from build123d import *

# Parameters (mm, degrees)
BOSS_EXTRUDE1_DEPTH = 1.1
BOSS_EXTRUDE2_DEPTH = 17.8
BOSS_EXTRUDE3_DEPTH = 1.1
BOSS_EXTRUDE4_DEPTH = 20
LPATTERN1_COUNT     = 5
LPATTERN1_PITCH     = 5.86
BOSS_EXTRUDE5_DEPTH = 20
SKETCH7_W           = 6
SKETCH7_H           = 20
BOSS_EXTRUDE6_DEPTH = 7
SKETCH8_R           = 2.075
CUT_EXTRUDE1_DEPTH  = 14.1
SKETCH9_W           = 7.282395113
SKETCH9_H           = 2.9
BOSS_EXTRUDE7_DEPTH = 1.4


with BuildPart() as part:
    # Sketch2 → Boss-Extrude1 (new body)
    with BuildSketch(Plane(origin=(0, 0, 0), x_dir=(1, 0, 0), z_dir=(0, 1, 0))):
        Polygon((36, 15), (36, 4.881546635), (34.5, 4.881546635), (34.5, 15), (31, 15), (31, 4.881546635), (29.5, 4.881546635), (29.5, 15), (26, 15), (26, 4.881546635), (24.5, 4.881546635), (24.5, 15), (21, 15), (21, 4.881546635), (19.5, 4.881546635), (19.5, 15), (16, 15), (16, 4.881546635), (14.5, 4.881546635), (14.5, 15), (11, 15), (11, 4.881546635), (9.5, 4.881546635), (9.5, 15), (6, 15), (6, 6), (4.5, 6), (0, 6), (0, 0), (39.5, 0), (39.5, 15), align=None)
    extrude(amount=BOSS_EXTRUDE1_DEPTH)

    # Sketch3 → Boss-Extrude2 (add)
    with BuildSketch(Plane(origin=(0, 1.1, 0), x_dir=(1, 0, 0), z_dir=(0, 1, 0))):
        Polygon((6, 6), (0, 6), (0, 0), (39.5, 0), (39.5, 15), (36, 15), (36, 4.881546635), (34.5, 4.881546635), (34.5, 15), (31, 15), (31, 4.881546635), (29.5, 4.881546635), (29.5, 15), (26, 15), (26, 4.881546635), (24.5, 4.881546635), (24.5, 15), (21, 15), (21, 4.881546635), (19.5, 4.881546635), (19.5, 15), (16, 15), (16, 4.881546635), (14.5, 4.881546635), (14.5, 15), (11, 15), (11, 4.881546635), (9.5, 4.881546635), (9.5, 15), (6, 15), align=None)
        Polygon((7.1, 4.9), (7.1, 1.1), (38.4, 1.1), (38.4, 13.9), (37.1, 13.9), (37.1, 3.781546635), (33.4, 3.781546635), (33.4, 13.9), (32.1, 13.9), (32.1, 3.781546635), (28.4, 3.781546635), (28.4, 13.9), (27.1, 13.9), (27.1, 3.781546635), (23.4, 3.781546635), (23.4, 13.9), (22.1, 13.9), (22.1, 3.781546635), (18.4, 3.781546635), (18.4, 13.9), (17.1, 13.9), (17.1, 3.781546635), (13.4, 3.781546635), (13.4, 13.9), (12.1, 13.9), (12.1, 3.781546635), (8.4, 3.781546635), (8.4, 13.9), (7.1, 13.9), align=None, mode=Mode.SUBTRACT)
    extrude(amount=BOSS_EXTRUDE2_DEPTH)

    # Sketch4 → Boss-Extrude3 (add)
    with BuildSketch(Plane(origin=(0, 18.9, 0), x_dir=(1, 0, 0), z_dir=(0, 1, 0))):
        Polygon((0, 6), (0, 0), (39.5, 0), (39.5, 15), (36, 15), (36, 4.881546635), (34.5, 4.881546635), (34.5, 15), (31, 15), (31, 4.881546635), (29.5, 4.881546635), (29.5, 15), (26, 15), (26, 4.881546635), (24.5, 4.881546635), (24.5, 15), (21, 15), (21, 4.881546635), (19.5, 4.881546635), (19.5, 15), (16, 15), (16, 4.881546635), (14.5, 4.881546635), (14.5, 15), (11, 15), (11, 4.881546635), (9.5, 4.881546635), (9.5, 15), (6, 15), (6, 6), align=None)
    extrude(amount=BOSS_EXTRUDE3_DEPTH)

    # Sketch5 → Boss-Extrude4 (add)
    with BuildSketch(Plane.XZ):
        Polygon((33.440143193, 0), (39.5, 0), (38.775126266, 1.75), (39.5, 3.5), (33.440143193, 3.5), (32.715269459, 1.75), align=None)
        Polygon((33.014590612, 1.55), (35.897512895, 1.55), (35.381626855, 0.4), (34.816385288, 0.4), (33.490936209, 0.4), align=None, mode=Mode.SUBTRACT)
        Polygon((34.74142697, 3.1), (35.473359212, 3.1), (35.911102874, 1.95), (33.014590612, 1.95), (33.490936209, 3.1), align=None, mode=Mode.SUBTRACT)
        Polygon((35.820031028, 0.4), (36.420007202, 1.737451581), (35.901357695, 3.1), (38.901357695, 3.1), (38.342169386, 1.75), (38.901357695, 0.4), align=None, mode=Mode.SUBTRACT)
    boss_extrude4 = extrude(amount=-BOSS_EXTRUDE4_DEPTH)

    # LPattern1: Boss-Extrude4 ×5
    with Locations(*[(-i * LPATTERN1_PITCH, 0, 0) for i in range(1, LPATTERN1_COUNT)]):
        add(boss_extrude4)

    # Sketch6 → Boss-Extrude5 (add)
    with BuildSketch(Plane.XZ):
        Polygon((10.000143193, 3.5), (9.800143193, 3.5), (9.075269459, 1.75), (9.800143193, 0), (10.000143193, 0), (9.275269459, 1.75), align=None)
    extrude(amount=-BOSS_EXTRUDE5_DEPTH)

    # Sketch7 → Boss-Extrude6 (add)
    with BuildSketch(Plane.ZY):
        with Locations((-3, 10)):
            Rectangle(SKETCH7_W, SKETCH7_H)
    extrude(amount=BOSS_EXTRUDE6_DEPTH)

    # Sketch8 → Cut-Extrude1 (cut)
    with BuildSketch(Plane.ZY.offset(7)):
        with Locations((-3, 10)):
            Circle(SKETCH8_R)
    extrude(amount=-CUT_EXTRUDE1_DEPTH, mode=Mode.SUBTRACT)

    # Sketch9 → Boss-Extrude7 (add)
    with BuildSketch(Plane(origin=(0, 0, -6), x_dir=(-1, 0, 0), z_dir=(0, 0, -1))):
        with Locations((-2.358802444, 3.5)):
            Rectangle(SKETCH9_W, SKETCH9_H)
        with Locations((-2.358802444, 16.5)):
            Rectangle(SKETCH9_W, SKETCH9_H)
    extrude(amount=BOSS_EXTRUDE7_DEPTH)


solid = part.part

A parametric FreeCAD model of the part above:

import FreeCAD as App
import Part
import Sketcher

V = App.Vector
Q = App.Units.Quantity

doc = App.newDocument("Part")
body = doc.addObject("PartDesign::Body", "Body")

sketch1 = body.newObject("Sketcher::SketchObject", "Sketch")
sketch1.AttachmentSupport = (doc.getObject("XZ_Plane"), [""])
sketch1.MapMode = "FlatFace"
sketch1.addGeometry([
    Part.LineSegment(V(36, -15, 0), V(36, -4.9, 0)),
    Part.LineSegment(V(36, -4.9, 0), V(34.5, -4.9, 0)),
    Part.LineSegment(V(34.5, -4.9, 0), V(34.5, -15, 0)),
    Part.LineSegment(V(34.5, -15, 0), V(31, -15, 0)),
    Part.LineSegment(V(31, -15, 0), V(31, -4.9, 0)),
    Part.LineSegment(V(31, -4.9, 0), V(29.5, -4.9, 0)),
    Part.LineSegment(V(29.5, -4.9, 0), V(29.5, -15, 0)),
    Part.LineSegment(V(29.5, -15, 0), V(26, -15, 0)),
    Part.LineSegment(V(26, -15, 0), V(26, -4.9, 0)),
    Part.LineSegment(V(26, -4.9, 0), V(24.5, -4.9, 0)),
    Part.LineSegment(V(24.5, -4.9, 0), V(24.5, -15, 0)),
    Part.LineSegment(V(24.5, -15, 0), V(21, -15, 0)),
    Part.LineSegment(V(21, -15, 0), V(21, -4.9, 0)),
    Part.LineSegment(V(21, -4.9, 0), V(19.5, -4.9, 0)),
    Part.LineSegment(V(19.5, -4.9, 0), V(19.5, -15, 0)),
    Part.LineSegment(V(19.5, -15, 0), V(16, -15, 0)),
    Part.LineSegment(V(16, -15, 0), V(16, -4.9, 0)),
    Part.LineSegment(V(16, -4.9, 0), V(14.5, -4.9, 0)),
    Part.LineSegment(V(14.5, -4.9, 0), V(14.5, -15, 0)),
    Part.LineSegment(V(14.5, -15, 0), V(11, -15, 0)),
    Part.LineSegment(V(11, -15, 0), V(11, -4.9, 0)),
    Part.LineSegment(V(11, -4.9, 0), V(9.5, -4.9, 0)),
    Part.LineSegment(V(9.5, -4.9, 0), V(9.5, -15, 0)),
    Part.LineSegment(V(9.5, -15, 0), V(6, -15, 0)),
    Part.LineSegment(V(6, -15, 0), V(6, -6, 0)),
    Part.LineSegment(V(6, -6, 0), V(0, -6, 0)),
    Part.LineSegment(V(0, -6, 0), V(0, 0, 0)),
    Part.LineSegment(V(0, 0, 0), V(39.5, 0, 0)),
    Part.LineSegment(V(39.5, 0, 0), V(39.5, -15, 0)),
    Part.LineSegment(V(39.5, -15, 0), V(36, -15, 0)),
], False)
sketch1.addConstraint([
    Sketcher.Constraint("Coincident", 0, 2, 1, 1),
    Sketcher.Constraint("Coincident", 1, 2, 2, 1),
    Sketcher.Constraint("Coincident", 2, 2, 3, 1),
    Sketcher.Constraint("Coincident", 3, 2, 4, 1),
    Sketcher.Constraint("Coincident", 4, 2, 5, 1),
    Sketcher.Constraint("Coincident", 5, 2, 6, 1),
    Sketcher.Constraint("Coincident", 6, 2, 7, 1),
    Sketcher.Constraint("Coincident", 7, 2, 8, 1),
    Sketcher.Constraint("Coincident", 8, 2, 9, 1),
    Sketcher.Constraint("Coincident", 9, 2, 10, 1),
    Sketcher.Constraint("Coincident", 10, 2, 11, 1),
    Sketcher.Constraint("Coincident", 11, 2, 12, 1),
    Sketcher.Constraint("Coincident", 12, 2, 13, 1),
    Sketcher.Constraint("Coincident", 13, 2, 14, 1),
    Sketcher.Constraint("Coincident", 14, 2, 15, 1),
    Sketcher.Constraint("Coincident", 15, 2, 16, 1),
    Sketcher.Constraint("Coincident", 16, 2, 17, 1),
    Sketcher.Constraint("Coincident", 17, 2, 18, 1),
    Sketcher.Constraint("Coincident", 18, 2, 19, 1),
    Sketcher.Constraint("Coincident", 19, 2, 20, 1),
    Sketcher.Constraint("Coincident", 20, 2, 21, 1),
    Sketcher.Constraint("Coincident", 21, 2, 22, 1),
    Sketcher.Constraint("Coincident", 22, 2, 23, 1),
    Sketcher.Constraint("Coincident", 23, 2, 24, 1),
    Sketcher.Constraint("Coincident", 24, 2, 25, 1),
    Sketcher.Constraint("Coincident", 25, 2, 26, 1),
    Sketcher.Constraint("Coincident", 26, 2, 27, 1),
    Sketcher.Constraint("Coincident", 27, 2, 28, 1),
    Sketcher.Constraint("Coincident", 28, 2, 29, 1),
    Sketcher.Constraint("Coincident", 29, 2, 0, 1),
    Sketcher.Constraint("Vertical", 0),
    Sketcher.Constraint("Horizontal", 1),
    Sketcher.Constraint("Vertical", 2),
    Sketcher.Constraint("Horizontal", 3),
    Sketcher.Constraint("Vertical", 4),
    Sketcher.Constraint("Horizontal", 5),
    Sketcher.Constraint("Vertical", 6),
    Sketcher.Constraint("Horizontal", 7),
    Sketcher.Constraint("Vertical", 8),
    Sketcher.Constraint("Horizontal", 9),
    Sketcher.Constraint("Vertical", 10),
    Sketcher.Constraint("Horizontal", 11),
    Sketcher.Constraint("Vertical", 12),
    Sketcher.Constraint("Horizontal", 13),
    Sketcher.Constraint("Vertical", 14),
    Sketcher.Constraint("Horizontal", 15),
    Sketcher.Constraint("Vertical", 16),
    Sketcher.Constraint("Horizontal", 17),
    Sketcher.Constraint("Vertical", 18),
    Sketcher.Constraint("Horizontal", 19),
    Sketcher.Constraint("Vertical", 20),
    Sketcher.Constraint("Horizontal", 21),
    Sketcher.Constraint("Vertical", 22),
    Sketcher.Constraint("Horizontal", 23),
    Sketcher.Constraint("Vertical", 24),
    Sketcher.Constraint("Horizontal", 25),
    Sketcher.Constraint("Vertical", 26),
    Sketcher.Constraint("Horizontal", 27),
    Sketcher.Constraint("Vertical", 28),
    Sketcher.Constraint("Horizontal", 29),
    Sketcher.Constraint("Coincident", 26, 2, -1, 1),
    Sketcher.Constraint("Horizontal", 1, 2, 4, 2),
    Sketcher.Constraint("Horizontal", 3, 2, 6, 2),
    Sketcher.Constraint("Horizontal", 5, 2, 8, 2),
    Sketcher.Constraint("Horizontal", 7, 2, 10, 2),
    Sketcher.Constraint("Horizontal", 9, 2, 12, 2),
    Sketcher.Constraint("Horizontal", 11, 2, 14, 2),
    Sketcher.Constraint("Horizontal", 13, 2, 16, 2),
    Sketcher.Constraint("Horizontal", 15, 2, 18, 2),
    Sketcher.Constraint("Horizontal", 17, 2, 20, 2),
    Sketcher.Constraint("Horizontal", 19, 2, 22, 2),
    Sketcher.Constraint("Horizontal", 23, 2, 28, 2),
    Sketcher.Constraint("Equal", 1, 5),
    Sketcher.Constraint("Equal", 3, 7),
    Sketcher.Constraint("Equal", 5, 9),
    Sketcher.Constraint("Equal", 7, 11),
    Sketcher.Constraint("Equal", 9, 13),
    Sketcher.Constraint("Equal", 11, 15),
    Sketcher.Constraint("Equal", 13, 17),
    Sketcher.Constraint("Equal", 15, 19),
    Sketcher.Constraint("Equal", 17, 21),
    Sketcher.Constraint("Equal", 19, 23),
    Sketcher.Constraint("Equal", 23, 29),
    Sketcher.Constraint("Equal", 25, 26),
    Sketcher.Constraint("DistanceX", 25, 2, 25, 1, 6.0),
    Sketcher.Constraint("DistanceY", 24, 1, 24, 2, 9.0),
    Sketcher.Constraint("DistanceX", 1, 2, 1, 1, 1.5),
    Sketcher.Constraint("DistanceX", 3, 2, 3, 1, 3.5),
    Sketcher.Constraint("DistanceY", 0, 1, 0, 2, 10.118453),
])
pad1 = body.newObject("PartDesign::Pad", "Pad")
pad1.Profile = sketch1
pad1.Length = 1.1
pad1.Reversed = True

sketch2 = body.newObject("Sketcher::SketchObject", "Sketch001")
sketch2.AttachmentSupport = (doc.getObject("XZ_Plane"), [""])
sketch2.MapMode = "FlatFace"
sketch2.AttachmentOffset = App.Placement(V(0, 0, -1.1), App.Rotation())
sketch2.addGeometry([
    Part.LineSegment(V(6, -6, 0), V(0, -6, 0)),
    Part.LineSegment(V(0, -6, 0), V(0, 0, 0)),
    Part.LineSegment(V(0, 0, 0), V(39.5, 0, 0)),
    Part.LineSegment(V(39.5, 0, 0), V(39.5, -15, 0)),
    Part.LineSegment(V(39.5, -15, 0), V(36, -15, 0)),
    Part.LineSegment(V(36, -15, 0), V(36, -4.9, 0)),
    Part.LineSegment(V(36, -4.9, 0), V(34.5, -4.9, 0)),
    Part.LineSegment(V(34.5, -4.9, 0), V(34.5, -15, 0)),
    Part.LineSegment(V(34.5, -15, 0), V(31, -15, 0)),
    Part.LineSegment(V(31, -15, 0), V(31, -4.9, 0)),
    Part.LineSegment(V(31, -4.9, 0), V(29.5, -4.9, 0)),
    Part.LineSegment(V(29.5, -4.9, 0), V(29.5, -15, 0)),
    Part.LineSegment(V(29.5, -15, 0), V(26, -15, 0)),
    Part.LineSegment(V(26, -15, 0), V(26, -4.9, 0)),
    Part.LineSegment(V(26, -4.9, 0), V(24.5, -4.9, 0)),
    Part.LineSegment(V(24.5, -4.9, 0), V(24.5, -15, 0)),
    Part.LineSegment(V(24.5, -15, 0), V(21, -15, 0)),
    Part.LineSegment(V(21, -15, 0), V(21, -4.9, 0)),
    Part.LineSegment(V(21, -4.9, 0), V(19.5, -4.9, 0)),
    Part.LineSegment(V(19.5, -4.9, 0), V(19.5, -15, 0)),
    Part.LineSegment(V(19.5, -15, 0), V(16, -15, 0)),
    Part.LineSegment(V(16, -15, 0), V(16, -4.9, 0)),
    Part.LineSegment(V(16, -4.9, 0), V(14.5, -4.9, 0)),
    Part.LineSegment(V(14.5, -4.9, 0), V(14.5, -15, 0)),
    Part.LineSegment(V(14.5, -15, 0), V(11, -15, 0)),
    Part.LineSegment(V(11, -15, 0), V(11, -4.9, 0)),
    Part.LineSegment(V(11, -4.9, 0), V(9.5, -4.9, 0)),
    Part.LineSegment(V(9.5, -4.9, 0), V(9.5, -15, 0)),
    Part.LineSegment(V(9.5, -15, 0), V(6, -15, 0)),
    Part.LineSegment(V(6, -15, 0), V(6, -6, 0)),
    Part.LineSegment(V(7.1, -1.1, 0), V(7.1, -13.9, 0)),
    Part.LineSegment(V(7.1, -13.9, 0), V(8.4, -13.9, 0)),
    Part.LineSegment(V(8.4, -13.9, 0), V(8.4, -3.8, 0)),
    Part.LineSegment(V(8.4, -3.8, 0), V(12.1, -3.8, 0)),
    Part.LineSegment(V(12.1, -3.8, 0), V(12.1, -13.9, 0)),
    Part.LineSegment(V(12.1, -13.9, 0), V(13.4, -13.9, 0)),
    Part.LineSegment(V(13.4, -13.9, 0), V(13.4, -3.8, 0)),
    Part.LineSegment(V(13.4, -3.8, 0), V(17.1, -3.8, 0)),
    Part.LineSegment(V(17.1, -3.8, 0), V(17.1, -13.9, 0)),
    Part.LineSegment(V(17.1, -13.9, 0), V(18.4, -13.9, 0)),
    Part.LineSegment(V(18.4, -13.9, 0), V(18.4, -3.8, 0)),
    Part.LineSegment(V(18.4, -3.8, 0), V(22.1, -3.8, 0)),
    Part.LineSegment(V(22.1, -3.8, 0), V(22.1, -13.9, 0)),
    Part.LineSegment(V(22.1, -13.9, 0), V(23.4, -13.9, 0)),
    Part.LineSegment(V(23.4, -13.9, 0), V(23.4, -3.8, 0)),
    Part.LineSegment(V(23.4, -3.8, 0), V(27.1, -3.8, 0)),
    Part.LineSegment(V(27.1, -3.8, 0), V(27.1, -13.9, 0)),
    Part.LineSegment(V(27.1, -13.9, 0), V(28.4, -13.9, 0)),
    Part.LineSegment(V(28.4, -13.9, 0), V(28.4, -3.8, 0)),
    Part.LineSegment(V(28.4, -3.8, 0), V(32.1, -3.8, 0)),
    Part.LineSegment(V(32.1, -3.8, 0), V(32.1, -13.9, 0)),
    Part.LineSegment(V(32.1, -13.9, 0), V(33.4, -13.9, 0)),
    Part.LineSegment(V(33.4, -13.9, 0), V(33.4, -3.8, 0)),
    Part.LineSegment(V(33.4, -3.8, 0), V(37.1, -3.8, 0)),
    Part.LineSegment(V(37.1, -3.8, 0), V(37.1, -13.9, 0)),
    Part.LineSegment(V(37.1, -13.9, 0), V(38.4, -13.9, 0)),
    Part.LineSegment(V(38.4, -13.9, 0), V(38.4, -1.1, 0)),
    Part.LineSegment(V(38.4, -1.1, 0), V(7.1, -1.1, 0)),
], False)
sketch2.addConstraint([
    Sketcher.Constraint("Coincident", 0, 2, 1, 1),
    Sketcher.Constraint("Coincident", 1, 2, 2, 1),
    Sketcher.Constraint("Coincident", 2, 2, 3, 1),
    Sketcher.Constraint("Coincident", 3, 2, 4, 1),
    Sketcher.Constraint("Coincident", 4, 2, 5, 1),
    Sketcher.Constraint("Coincident", 5, 2, 6, 1),
    Sketcher.Constraint("Coincident", 6, 2, 7, 1),
    Sketcher.Constraint("Coincident", 7, 2, 8, 1),
    Sketcher.Constraint("Coincident", 8, 2, 9, 1),
    Sketcher.Constraint("Coincident", 9, 2, 10, 1),
    Sketcher.Constraint("Coincident", 10, 2, 11, 1),
    Sketcher.Constraint("Coincident", 11, 2, 12, 1),
    Sketcher.Constraint("Coincident", 12, 2, 13, 1),
    Sketcher.Constraint("Coincident", 13, 2, 14, 1),
    Sketcher.Constraint("Coincident", 14, 2, 15, 1),
    Sketcher.Constraint("Coincident", 15, 2, 16, 1),
    Sketcher.Constraint("Coincident", 16, 2, 17, 1),
    Sketcher.Constraint("Coincident", 17, 2, 18, 1),
    Sketcher.Constraint("Coincident", 18, 2, 19, 1),
    Sketcher.Constraint("Coincident", 19, 2, 20, 1),
    Sketcher.Constraint("Coincident", 20, 2, 21, 1),
    Sketcher.Constraint("Coincident", 21, 2, 22, 1),
    Sketcher.Constraint("Coincident", 22, 2, 23, 1),
    Sketcher.Constraint("Coincident", 23, 2, 24, 1),
    Sketcher.Constraint("Coincident", 24, 2, 25, 1),
    Sketcher.Constraint("Coincident", 25, 2, 26, 1),
    Sketcher.Constraint("Coincident", 26, 2, 27, 1),
    Sketcher.Constraint("Coincident", 27, 2, 28, 1),
    Sketcher.Constraint("Coincident", 28, 2, 29, 1),
    Sketcher.Constraint("Coincident", 29, 2, 0, 1),
    Sketcher.Constraint("Coincident", 30, 2, 31, 1),
    Sketcher.Constraint("Coincident", 31, 2, 32, 1),
    Sketcher.Constraint("Coincident", 32, 2, 33, 1),
    Sketcher.Constraint("Coincident", 33, 2, 34, 1),
    Sketcher.Constraint("Coincident", 34, 2, 35, 1),
    Sketcher.Constraint("Coincident", 35, 2, 36, 1),
    Sketcher.Constraint("Coincident", 36, 2, 37, 1),
    Sketcher.Constraint("Coincident", 37, 2, 38, 1),
    Sketcher.Constraint("Coincident", 38, 2, 39, 1),
    Sketcher.Constraint("Coincident", 39, 2, 40, 1),
    Sketcher.Constraint("Coincident", 40, 2, 41, 1),
    Sketcher.Constraint("Coincident", 41, 2, 42, 1),
    Sketcher.Constraint("Coincident", 42, 2, 43, 1),
    Sketcher.Constraint("Coincident", 43, 2, 44, 1),
    Sketcher.Constraint("Coincident", 44, 2, 45, 1),
    Sketcher.Constraint("Coincident", 45, 2, 46, 1),
    Sketcher.Constraint("Coincident", 46, 2, 47, 1),
    Sketcher.Constraint("Coincident", 47, 2, 48, 1),
    Sketcher.Constraint("Coincident", 48, 2, 49, 1),
    Sketcher.Constraint("Coincident", 49, 2, 50, 1),
    Sketcher.Constraint("Coincident", 50, 2, 51, 1),
    Sketcher.Constraint("Coincident", 51, 2, 52, 1),
    Sketcher.Constraint("Coincident", 52, 2, 53, 1),
    Sketcher.Constraint("Coincident", 53, 2, 54, 1),
    Sketcher.Constraint("Coincident", 54, 2, 55, 1),
    Sketcher.Constraint("Coincident", 55, 2, 56, 1),
    Sketcher.Constraint("Coincident", 56, 2, 57, 1),
    Sketcher.Constraint("Coincident", 57, 2, 30, 1),
    Sketcher.Constraint("Horizontal", 0),
    Sketcher.Constraint("Vertical", 1),
    Sketcher.Constraint("Horizontal", 2),
    Sketcher.Constraint("Vertical", 3),
    Sketcher.Constraint("Horizontal", 4),
    Sketcher.Constraint("Vertical", 5),
    Sketcher.Constraint("Horizontal", 6),
    Sketcher.Constraint("Vertical", 7),
    Sketcher.Constraint("Horizontal", 8),
    Sketcher.Constraint("Vertical", 9),
    Sketcher.Constraint("Horizontal", 10),
    Sketcher.Constraint("Vertical", 11),
    Sketcher.Constraint("Horizontal", 12),
    Sketcher.Constraint("Vertical", 13),
    Sketcher.Constraint("Horizontal", 14),
    Sketcher.Constraint("Vertical", 15),
    Sketcher.Constraint("Horizontal", 16),
    Sketcher.Constraint("Vertical", 17),
    Sketcher.Constraint("Horizontal", 18),
    Sketcher.Constraint("Vertical", 19),
    Sketcher.Constraint("Horizontal", 20),
    Sketcher.Constraint("Vertical", 21),
    Sketcher.Constraint("Horizontal", 22),
    Sketcher.Constraint("Vertical", 23),
    Sketcher.Constraint("Horizontal", 24),
    Sketcher.Constraint("Vertical", 25),
    Sketcher.Constraint("Horizontal", 26),
    Sketcher.Constraint("Vertical", 27),
    Sketcher.Constraint("Horizontal", 28),
    Sketcher.Constraint("Vertical", 29),
    Sketcher.Constraint("Vertical", 30),
    Sketcher.Constraint("Horizontal", 31),
    Sketcher.Constraint("Vertical", 32),
    Sketcher.Constraint("Horizontal", 33),
    Sketcher.Constraint("Vertical", 34),
    Sketcher.Constraint("Horizontal", 35),
    Sketcher.Constraint("Vertical", 36),
    Sketcher.Constraint("Horizontal", 37),
    Sketcher.Constraint("Vertical", 38),
    Sketcher.Constraint("Horizontal", 39),
    Sketcher.Constraint("Vertical", 40),
    Sketcher.Constraint("Horizontal", 41),
    Sketcher.Constraint("Vertical", 42),
    Sketcher.Constraint("Horizontal", 43),
    Sketcher.Constraint("Vertical", 44),
    Sketcher.Constraint("Horizontal", 45),
    Sketcher.Constraint("Vertical", 46),
    Sketcher.Constraint("Horizontal", 47),
    Sketcher.Constraint("Vertical", 48),
    Sketcher.Constraint("Horizontal", 49),
    Sketcher.Constraint("Vertical", 50),
    Sketcher.Constraint("Horizontal", 51),
    Sketcher.Constraint("Vertical", 52),
    Sketcher.Constraint("Horizontal", 53),
    Sketcher.Constraint("Vertical", 54),
    Sketcher.Constraint("Horizontal", 55),
    Sketcher.Constraint("Vertical", 56),
    Sketcher.Constraint("Horizontal", 57),
    Sketcher.Constraint("Coincident", 1, 2, -1, 1),
    Sketcher.Constraint("Horizontal", 4, 2, 7, 2),
    Sketcher.Constraint("Horizontal", 6, 2, 9, 2),
    Sketcher.Constraint("Horizontal", 8, 2, 11, 2),
    Sketcher.Constraint("Horizontal", 10, 2, 13, 2),
    Sketcher.Constraint("Horizontal", 12, 2, 15, 2),
    Sketcher.Constraint("Horizontal", 14, 2, 17, 2),
    Sketcher.Constraint("Horizontal", 16, 2, 19, 2),
    Sketcher.Constraint("Horizontal", 18, 2, 21, 2),
    Sketcher.Constraint("Horizontal", 20, 2, 23, 2),
    Sketcher.Constraint("Horizontal", 22, 2, 25, 2),
    Sketcher.Constraint("Horizontal", 24, 2, 27, 2),
    Sketcher.Constraint("Horizontal", 31, 2, 34, 2),
    Sketcher.Constraint("Horizontal", 33, 2, 36, 2),
    Sketcher.Constraint("Horizontal", 35, 2, 38, 2),
    Sketcher.Constraint("Horizontal", 37, 2, 40, 2),
    Sketcher.Constraint("Horizontal", 39, 2, 42, 2),
    Sketcher.Constraint("Horizontal", 41, 2, 44, 2),
    Sketcher.Constraint("Horizontal", 43, 2, 46, 2),
    Sketcher.Constraint("Horizontal", 45, 2, 48, 2),
    Sketcher.Constraint("Horizontal", 47, 2, 50, 2),
    Sketcher.Constraint("Horizontal", 49, 2, 52, 2),
    Sketcher.Constraint("Horizontal", 51, 2, 54, 2),
    Sketcher.Constraint("Equal", 4, 8),
    Sketcher.Constraint("Equal", 6, 10),
    Sketcher.Constraint("Equal", 8, 12),
    Sketcher.Constraint("Equal", 10, 14),
    Sketcher.Constraint("Equal", 12, 16),
    Sketcher.Constraint("Equal", 14, 18),
    Sketcher.Constraint("Equal", 16, 20),
    Sketcher.Constraint("Equal", 18, 22),
    Sketcher.Constraint("Equal", 20, 24),
    Sketcher.Constraint("Equal", 22, 26),
    Sketcher.Constraint("Equal", 24, 28),
    Sketcher.Constraint("Equal", 31, 35),
    Sketcher.Constraint("Equal", 33, 37),
    Sketcher.Constraint("Equal", 35, 39),
    Sketcher.Constraint("Equal", 37, 41),
    Sketcher.Constraint("Equal", 39, 43),
    Sketcher.Constraint("Equal", 41, 45),
    Sketcher.Constraint("Equal", 43, 47),
    Sketcher.Constraint("Equal", 45, 49),
    Sketcher.Constraint("Equal", 47, 51),
    Sketcher.Constraint("Equal", 49, 53),
    Sketcher.Constraint("Equal", 51, 55),
    Sketcher.Constraint("Equal", 0, 1),
    Sketcher.Constraint("Equal", 27, 32),
    Sketcher.Constraint("DistanceX", 0, 2, 0, 1, 6.0),
    Sketcher.Constraint("DistanceY", 3, 2, 3, 1, 15.0),
    Sketcher.Constraint("DistanceX", 2, 1, 2, 2, 39.5),
    Sketcher.Constraint("DistanceX", 4, 2, 4, 1, 3.5),
    Sketcher.Constraint("DistanceX", 31, 1, 31, 2, 1.3),
    Sketcher.Constraint("DistanceX", 33, 1, 33, 2, 3.7),
    Sketcher.Constraint("DistanceY", 30, 2, 30, 1, 12.8),
    Sketcher.Constraint("DistanceX", -1, 1, 30, 2, 7.1),
    Sketcher.Constraint("DistanceY", 30, 2, -1, 1, 13.9),
    Sketcher.Constraint("DistanceY", 5, 1, 5, 2, 10.118453),
])
pad2 = body.newObject("PartDesign::Pad", "Pad001")
pad2.Profile = sketch2
pad2.Length = 17.8
pad2.Reversed = True

sketch3 = body.newObject("Sketcher::SketchObject", "Sketch002")
sketch3.AttachmentSupport = (doc.getObject("XZ_Plane"), [""])
sketch3.MapMode = "FlatFace"
sketch3.AttachmentOffset = App.Placement(V(0, 0, -18.9), App.Rotation())
sketch3.addGeometry([
    Part.LineSegment(V(0, -6, 0), V(0, 0, 0)),
    Part.LineSegment(V(0, 0, 0), V(39.5, 0, 0)),
    Part.LineSegment(V(39.5, 0, 0), V(39.5, -15, 0)),
    Part.LineSegment(V(39.5, -15, 0), V(36, -15, 0)),
    Part.LineSegment(V(36, -15, 0), V(36, -4.9, 0)),
    Part.LineSegment(V(36, -4.9, 0), V(34.5, -4.9, 0)),
    Part.LineSegment(V(34.5, -4.9, 0), V(34.5, -15, 0)),
    Part.LineSegment(V(34.5, -15, 0), V(31, -15, 0)),
    Part.LineSegment(V(31, -15, 0), V(31, -4.9, 0)),
    Part.LineSegment(V(31, -4.9, 0), V(29.5, -4.9, 0)),
    Part.LineSegment(V(29.5, -4.9, 0), V(29.5, -15, 0)),
    Part.LineSegment(V(29.5, -15, 0), V(26, -15, 0)),
    Part.LineSegment(V(26, -15, 0), V(26, -4.9, 0)),
    Part.LineSegment(V(26, -4.9, 0), V(24.5, -4.9, 0)),
    Part.LineSegment(V(24.5, -4.9, 0), V(24.5, -15, 0)),
    Part.LineSegment(V(24.5, -15, 0), V(21, -15, 0)),
    Part.LineSegment(V(21, -15, 0), V(21, -4.9, 0)),
    Part.LineSegment(V(21, -4.9, 0), V(19.5, -4.9, 0)),
    Part.LineSegment(V(19.5, -4.9, 0), V(19.5, -15, 0)),
    Part.LineSegment(V(19.5, -15, 0), V(16, -15, 0)),
    Part.LineSegment(V(16, -15, 0), V(16, -4.9, 0)),
    Part.LineSegment(V(16, -4.9, 0), V(14.5, -4.9, 0)),
    Part.LineSegment(V(14.5, -4.9, 0), V(14.5, -15, 0)),
    Part.LineSegment(V(14.5, -15, 0), V(11, -15, 0)),
    Part.LineSegment(V(11, -15, 0), V(11, -4.9, 0)),
    Part.LineSegment(V(11, -4.9, 0), V(9.5, -4.9, 0)),
    Part.LineSegment(V(9.5, -4.9, 0), V(9.5, -15, 0)),
    Part.LineSegment(V(9.5, -15, 0), V(6, -15, 0)),
    Part.LineSegment(V(6, -15, 0), V(6, -6, 0)),
    Part.LineSegment(V(6, -6, 0), V(0, -6, 0)),
], False)
sketch3.addConstraint([
    Sketcher.Constraint("Coincident", 0, 2, 1, 1),
    Sketcher.Constraint("Coincident", 1, 2, 2, 1),
    Sketcher.Constraint("Coincident", 2, 2, 3, 1),
    Sketcher.Constraint("Coincident", 3, 2, 4, 1),
    Sketcher.Constraint("Coincident", 4, 2, 5, 1),
    Sketcher.Constraint("Coincident", 5, 2, 6, 1),
    Sketcher.Constraint("Coincident", 6, 2, 7, 1),
    Sketcher.Constraint("Coincident", 7, 2, 8, 1),
    Sketcher.Constraint("Coincident", 8, 2, 9, 1),
    Sketcher.Constraint("Coincident", 9, 2, 10, 1),
    Sketcher.Constraint("Coincident", 10, 2, 11, 1),
    Sketcher.Constraint("Coincident", 11, 2, 12, 1),
    Sketcher.Constraint("Coincident", 12, 2, 13, 1),
    Sketcher.Constraint("Coincident", 13, 2, 14, 1),
    Sketcher.Constraint("Coincident", 14, 2, 15, 1),
    Sketcher.Constraint("Coincident", 15, 2, 16, 1),
    Sketcher.Constraint("Coincident", 16, 2, 17, 1),
    Sketcher.Constraint("Coincident", 17, 2, 18, 1),
    Sketcher.Constraint("Coincident", 18, 2, 19, 1),
    Sketcher.Constraint("Coincident", 19, 2, 20, 1),
    Sketcher.Constraint("Coincident", 20, 2, 21, 1),
    Sketcher.Constraint("Coincident", 21, 2, 22, 1),
    Sketcher.Constraint("Coincident", 22, 2, 23, 1),
    Sketcher.Constraint("Coincident", 23, 2, 24, 1),
    Sketcher.Constraint("Coincident", 24, 2, 25, 1),
    Sketcher.Constraint("Coincident", 25, 2, 26, 1),
    Sketcher.Constraint("Coincident", 26, 2, 27, 1),
    Sketcher.Constraint("Coincident", 27, 2, 28, 1),
    Sketcher.Constraint("Coincident", 28, 2, 29, 1),
    Sketcher.Constraint("Coincident", 29, 2, 0, 1),
    Sketcher.Constraint("Vertical", 0),
    Sketcher.Constraint("Horizontal", 1),
    Sketcher.Constraint("Vertical", 2),
    Sketcher.Constraint("Horizontal", 3),
    Sketcher.Constraint("Vertical", 4),
    Sketcher.Constraint("Horizontal", 5),
    Sketcher.Constraint("Vertical", 6),
    Sketcher.Constraint("Horizontal", 7),
    Sketcher.Constraint("Vertical", 8),
    Sketcher.Constraint("Horizontal", 9),
    Sketcher.Constraint("Vertical", 10),
    Sketcher.Constraint("Horizontal", 11),
    Sketcher.Constraint("Vertical", 12),
    Sketcher.Constraint("Horizontal", 13),
    Sketcher.Constraint("Vertical", 14),
    Sketcher.Constraint("Horizontal", 15),
    Sketcher.Constraint("Vertical", 16),
    Sketcher.Constraint("Horizontal", 17),
    Sketcher.Constraint("Vertical", 18),
    Sketcher.Constraint("Horizontal", 19),
    Sketcher.Constraint("Vertical", 20),
    Sketcher.Constraint("Horizontal", 21),
    Sketcher.Constraint("Vertical", 22),
    Sketcher.Constraint("Horizontal", 23),
    Sketcher.Constraint("Vertical", 24),
    Sketcher.Constraint("Horizontal", 25),
    Sketcher.Constraint("Vertical", 26),
    Sketcher.Constraint("Horizontal", 27),
    Sketcher.Constraint("Vertical", 28),
    Sketcher.Constraint("Horizontal", 29),
    Sketcher.Constraint("Coincident", 0, 2, -1, 1),
    Sketcher.Constraint("Horizontal", 3, 2, 6, 2),
    Sketcher.Constraint("Horizontal", 5, 2, 8, 2),
    Sketcher.Constraint("Horizontal", 7, 2, 10, 2),
    Sketcher.Constraint("Horizontal", 9, 2, 12, 2),
    Sketcher.Constraint("Horizontal", 11, 2, 14, 2),
    Sketcher.Constraint("Horizontal", 13, 2, 16, 2),
    Sketcher.Constraint("Horizontal", 15, 2, 18, 2),
    Sketcher.Constraint("Horizontal", 17, 2, 20, 2),
    Sketcher.Constraint("Horizontal", 19, 2, 22, 2),
    Sketcher.Constraint("Horizontal", 21, 2, 24, 2),
    Sketcher.Constraint("Horizontal", 23, 2, 26, 2),
    Sketcher.Constraint("Equal", 3, 7),
    Sketcher.Constraint("Equal", 5, 9),
    Sketcher.Constraint("Equal", 7, 11),
    Sketcher.Constraint("Equal", 9, 13),
    Sketcher.Constraint("Equal", 11, 15),
    Sketcher.Constraint("Equal", 13, 17),
    Sketcher.Constraint("Equal", 15, 19),
    Sketcher.Constraint("Equal", 17, 21),
    Sketcher.Constraint("Equal", 19, 23),
    Sketcher.Constraint("Equal", 21, 25),
    Sketcher.Constraint("Equal", 23, 27),
    Sketcher.Constraint("Equal", 29, 0),
    Sketcher.Constraint("DistanceX", 29, 2, 29, 1, 6.0),
    Sketcher.Constraint("DistanceY", 2, 2, 2, 1, 15.0),
    Sketcher.Constraint("DistanceX", 1, 1, 1, 2, 39.5),
    Sketcher.Constraint("DistanceX", 3, 2, 3, 1, 3.5),
    Sketcher.Constraint("DistanceY", 4, 1, 4, 2, 10.118453),
])
pad3 = body.newObject("PartDesign::Pad", "Pad002")
pad3.Profile = sketch3
pad3.Length = 1.1
pad3.Reversed = True

sketch4 = body.newObject("Sketcher::SketchObject", "Sketch003")
sketch4.AttachmentSupport = (doc.getObject("XZ_Plane"), [""])
sketch4.MapMode = "FlatFace"
sketch4.addGeometry([
    Part.LineSegment(V(33.4, 0, 0), V(39.5, 0, 0)),
    Part.LineSegment(V(39.5, 0, 0), V(38.8, 1.8, 0)),
    Part.LineSegment(V(38.8, 1.8, 0), V(39.5, 3.5, 0)),
    Part.LineSegment(V(39.5, 3.5, 0), V(33.4, 3.5, 0)),
    Part.LineSegment(V(33.4, 3.5, 0), V(32.7, 1.8, 0)),
    Part.LineSegment(V(32.7, 1.8, 0), V(33.4, 0, 0)),
    Part.LineSegment(V(33.5, 0.4, 0), V(33, 1.6, 0)),
    Part.LineSegment(V(33, 1.6, 0), V(35.9, 1.6, 0)),
    Part.LineSegment(V(35.9, 1.6, 0), V(35.4, 0.4, 0)),
    Part.LineSegment(V(35.4, 0.4, 0), V(33.5, 0.4, 0)),
    Part.LineSegment(V(33.5, 3.1, 0), V(35.5, 3.1, 0)),
    Part.LineSegment(V(35.5, 3.1, 0), V(35.9, 1.9, 0)),
    Part.LineSegment(V(35.9, 1.9, 0), V(33, 1.9, 0)),
    Part.LineSegment(V(33, 1.9, 0), V(33.5, 3.1, 0)),
    Part.LineSegment(V(38.9, 0.4, 0), V(35.8, 0.4, 0)),
    Part.LineSegment(V(35.8, 0.4, 0), V(36.4, 1.7, 0)),
    Part.LineSegment(V(36.4, 1.7, 0), V(35.9, 3.1, 0)),
    Part.LineSegment(V(35.9, 3.1, 0), V(38.9, 3.1, 0)),
    Part.LineSegment(V(38.9, 3.1, 0), V(38.3, 1.8, 0)),
    Part.LineSegment(V(38.3, 1.8, 0), V(38.9, 0.4, 0)),
], False)
sketch4.addConstraint([
    Sketcher.Constraint("Coincident", 0, 2, 1, 1),
    Sketcher.Constraint("Coincident", 1, 2, 2, 1),
    Sketcher.Constraint("Coincident", 2, 2, 3, 1),
    Sketcher.Constraint("Coincident", 3, 2, 4, 1),
    Sketcher.Constraint("Coincident", 4, 2, 5, 1),
    Sketcher.Constraint("Coincident", 5, 2, 0, 1),
    Sketcher.Constraint("Coincident", 6, 2, 7, 1),
    Sketcher.Constraint("Coincident", 7, 2, 8, 1),
    Sketcher.Constraint("Coincident", 8, 2, 9, 1),
    Sketcher.Constraint("Coincident", 9, 2, 6, 1),
    Sketcher.Constraint("Coincident", 10, 2, 11, 1),
    Sketcher.Constraint("Coincident", 11, 2, 12, 1),
    Sketcher.Constraint("Coincident", 12, 2, 13, 1),
    Sketcher.Constraint("Coincident", 13, 2, 10, 1),
    Sketcher.Constraint("Coincident", 14, 2, 15, 1),
    Sketcher.Constraint("Coincident", 15, 2, 16, 1),
    Sketcher.Constraint("Coincident", 16, 2, 17, 1),
    Sketcher.Constraint("Coincident", 17, 2, 18, 1),
    Sketcher.Constraint("Coincident", 18, 2, 19, 1),
    Sketcher.Constraint("Coincident", 19, 2, 14, 1),
    Sketcher.Constraint("Horizontal", 0),
    Sketcher.Constraint("Horizontal", 3),
    Sketcher.Constraint("Horizontal", 7),
    Sketcher.Constraint("Horizontal", 9),
    Sketcher.Constraint("Horizontal", 10),
    Sketcher.Constraint("Horizontal", 12),
    Sketcher.Constraint("Horizontal", 14),
    Sketcher.Constraint("Horizontal", 17),
    Sketcher.Constraint("PointOnObject", 0, 2, -1),
    Sketcher.Constraint("Parallel", 2, 4),
    Sketcher.Constraint("Parallel", 1, 5),
    Sketcher.Constraint("Parallel", 5, 6),
    Sketcher.Constraint("Parallel", 4, 13),
    Sketcher.Constraint("Parallel", 8, 15),
    Sketcher.Constraint("Parallel", 11, 16),
    Sketcher.Constraint("Parallel", 13, 18),
    Sketcher.Constraint("Parallel", 6, 19),
    Sketcher.Constraint("Horizontal", 1, 2, 4, 2),
    Sketcher.Constraint("Horizontal", 9, 2, 14, 2),
    Sketcher.Constraint("Horizontal", 13, 2, 16, 2),
    Sketcher.Constraint("Horizontal", 4, 2, 18, 2),
    Sketcher.Constraint("Vertical", 0, 2, 2, 2),
    Sketcher.Constraint("Vertical", 6, 2, 12, 2),
    Sketcher.Constraint("Vertical", 9, 2, 13, 2),
    Sketcher.Constraint("Vertical", 17, 2, 19, 2),
    Sketcher.Constraint("Equal", 1, 2),
    Sketcher.Constraint("DistanceX", 17, 1, 17, 2, 3.0),
    Sketcher.Constraint("Angle", 1, Q("112.5 deg")),
    Sketcher.Constraint("DistanceX", -1, 1, 0, 2, 39.5),
    Sketcher.Constraint("DistanceY", -1, 1, 2, 2, 3.5),
    Sketcher.Constraint("DistanceY", -1, 1, 8, 2, 0.4),
    Sketcher.Constraint("DistanceY", 6, 2, 4, 2, 0.2),
    Sketcher.Constraint("DistanceX", 10, 2, 16, 2, 0.427998),
    Sketcher.Constraint("DistanceX", 9, 2, 9, 1, 1.890691),
    Sketcher.Constraint("DistanceX", 8, 2, 1, 2, 3.393499),
    Sketcher.Constraint("Distance", 8, 1.260412),
    Sketcher.Constraint("Distance", 15, 1.465861),
    Sketcher.Constraint("Distance", 16, 1.457922),
    Sketcher.Constraint("DistanceX", 0, 1, 0, 2, 6.059857),
    Sketcher.Constraint("DistanceX", 10, 1, 10, 2, 1.982423),
])
pad4 = body.newObject("PartDesign::Pad", "Pad003")
pad4.Profile = sketch4
pad4.Length = 20
pad4.Reversed = True
doc.recompute()

linearpattern = body.newObject("PartDesign::LinearPattern", "LinearPattern")
linearpattern.Originals = [pad4]
linearpattern.Direction = (doc.getObject("X_Axis"), [""])
linearpattern.Mode = "offset"
linearpattern.Offset = 5.86
linearpattern.Occurrences = 5
linearpattern.Reversed = True
body.Tip = linearpattern

sketch5 = body.newObject("Sketcher::SketchObject", "Sketch004")
sketch5.AttachmentSupport = (doc.getObject("XZ_Plane"), [""])
sketch5.MapMode = "FlatFace"
sketch5.addGeometry([
    Part.LineSegment(V(10, 3.5, 0), V(9.8, 3.5, 0)),
    Part.LineSegment(V(9.8, 3.5, 0), V(9.08, 1.75, 0)),
    Part.LineSegment(V(9.08, 1.75, 0), V(9.8, 0, 0)),
    Part.LineSegment(V(9.8, 0, 0), V(10, 0, 0)),
    Part.LineSegment(V(10, 0, 0), V(9.28, 1.75, 0)),
    Part.LineSegment(V(9.28, 1.75, 0), V(10, 3.5, 0)),
], False)
sketch5.addConstraint([
    Sketcher.Constraint("Coincident", 0, 2, 1, 1),
    Sketcher.Constraint("Coincident", 1, 2, 2, 1),
    Sketcher.Constraint("Coincident", 2, 2, 3, 1),
    Sketcher.Constraint("Coincident", 3, 2, 4, 1),
    Sketcher.Constraint("Coincident", 4, 2, 5, 1),
    Sketcher.Constraint("Coincident", 5, 2, 0, 1),
    Sketcher.Constraint("Horizontal", 0),
    Sketcher.Constraint("Horizontal", 3),
    Sketcher.Constraint("PointOnObject", 2, 2, -1),
    Sketcher.Constraint("Parallel", 2, 4),
    Sketcher.Constraint("Parallel", 1, 5),
    Sketcher.Constraint("Horizontal", 1, 2, 4, 2),
    Sketcher.Constraint("Vertical", 0, 2, 2, 2),
    Sketcher.Constraint("Equal", 1, 2),
    Sketcher.Constraint("DistanceX", 0, 2, 0, 1, 0.2),
    Sketcher.Constraint("Angle", 1, Q("-112.5 deg")),
    Sketcher.Constraint("DistanceY", -1, 1, 0, 2, 3.5),
    Sketcher.Constraint("DistanceX", -1, 1, 1, 2, 9.075269),
])
pad5 = body.newObject("PartDesign::Pad", "Pad004")
pad5.Profile = sketch5
pad5.Length = 20
pad5.Reversed = True

sketch6 = body.newObject("Sketcher::SketchObject", "Sketch005")
sketch6.AttachmentSupport = (doc.getObject("YZ_Plane"), [""])
sketch6.MapMode = "FlatFace"
sketch6.addGeometry([
    Part.LineSegment(V(20, -6, 0), V(0, -6, 0)),
    Part.LineSegment(V(0, -6, 0), V(0, 0, 0)),
    Part.LineSegment(V(0, 0, 0), V(20, 0, 0)),
    Part.LineSegment(V(20, 0, 0), V(20, -6, 0)),
], False)
sketch6.addConstraint([
    Sketcher.Constraint("Coincident", 0, 2, 1, 1),
    Sketcher.Constraint("Coincident", 1, 2, 2, 1),
    Sketcher.Constraint("Coincident", 2, 2, 3, 1),
    Sketcher.Constraint("Coincident", 3, 2, 0, 1),
    Sketcher.Constraint("Horizontal", 0),
    Sketcher.Constraint("Vertical", 1),
    Sketcher.Constraint("Horizontal", 2),
    Sketcher.Constraint("Vertical", 3),
    Sketcher.Constraint("Coincident", 1, 2, -1, 1),
    Sketcher.Constraint("DistanceX", 0, 2, 0, 1, 20.0),
    Sketcher.Constraint("DistanceY", 1, 1, 1, 2, 6.0),
])
pad6 = body.newObject("PartDesign::Pad", "Pad005")
pad6.Profile = sketch6
pad6.Length = 7
pad6.Reversed = True

sketch7 = body.newObject("Sketcher::SketchObject", "Sketch006")
sketch7.AttachmentSupport = (doc.getObject("YZ_Plane"), [""])
sketch7.MapMode = "FlatFace"
sketch7.AttachmentOffset = App.Placement(V(0, 0, -7), App.Rotation())
sketch7.addGeometry(Part.Circle(V(10, -3, 0), V(0, 0, 1), 2.1), False)
sketch7.addConstraint([
    Sketcher.Constraint("Diameter", 0, 4.15),
    Sketcher.Constraint("DistanceX", -1, 1, 0, 3, 10.0),
    Sketcher.Constraint("DistanceY", 0, 3, -1, 1, 3.0),
])
pocket1 = body.newObject("PartDesign::Pocket", "Pocket")
pocket1.Profile = sketch7
pocket1.Length = 14.1
pocket1.Reversed = True

sketch8 = body.newObject("Sketcher::SketchObject", "Sketch007")
sketch8.AttachmentSupport = (doc.getObject("XY_Plane"), [""])
sketch8.MapMode = "FlatFace"
sketch8.AttachmentOffset = App.Placement(V(0, 0, -6), App.Rotation())
sketch8.addGeometry([
    Part.LineSegment(V(6, 5, 0), V(6, 2, 0)),
    Part.LineSegment(V(6, 2, 0), V(-1.3, 2, 0)),
    Part.LineSegment(V(-1.3, 2, 0), V(-1.3, 5, 0)),
    Part.LineSegment(V(-1.3, 5, 0), V(6, 5, 0)),
    Part.LineSegment(V(6, 17.9, 0), V(6, 15.1, 0)),
    Part.LineSegment(V(6, 15.1, 0), V(-1.3, 15.1, 0)),
    Part.LineSegment(V(-1.3, 15.1, 0), V(-1.3, 17.9, 0)),
    Part.LineSegment(V(-1.3, 17.9, 0), V(6, 17.9, 0)),
], False)
sketch8.addConstraint([
    Sketcher.Constraint("Coincident", 0, 2, 1, 1),
    Sketcher.Constraint("Coincident", 1, 2, 2, 1),
    Sketcher.Constraint("Coincident", 2, 2, 3, 1),
    Sketcher.Constraint("Coincident", 3, 2, 0, 1),
    Sketcher.Constraint("Coincident", 4, 2, 5, 1),
    Sketcher.Constraint("Coincident", 5, 2, 6, 1),
    Sketcher.Constraint("Coincident", 6, 2, 7, 1),
    Sketcher.Constraint("Coincident", 7, 2, 4, 1),
    Sketcher.Constraint("Vertical", 0),
    Sketcher.Constraint("Horizontal", 1),
    Sketcher.Constraint("Vertical", 2),
    Sketcher.Constraint("Horizontal", 3),
    Sketcher.Constraint("Vertical", 4),
    Sketcher.Constraint("Horizontal", 5),
    Sketcher.Constraint("Vertical", 6),
    Sketcher.Constraint("Horizontal", 7),
    Sketcher.Constraint("Vertical", 3, 2, 4, 2),
    Sketcher.Constraint("Vertical", 2, 2, 5, 2),
    Sketcher.Constraint("Equal", 2, 4),
    Sketcher.Constraint("DistanceY", 0, 2, 0, 1, 2.9),
    Sketcher.Constraint("DistanceX", -1, 1, 0, 2, 6.0),
    Sketcher.Constraint("DistanceY", 0, 2, 4, 2, 13.0),
    Sketcher.Constraint("DistanceY", -1, 1, 0, 2, 2.05),
    Sketcher.Constraint("DistanceX", 1, 2, 1, 1, 7.282395),
])
pad7 = body.newObject("PartDesign::Pad", "Pad006")
pad7.Profile = sketch8
pad7.Length = 1.4
pad7.Reversed = True

doc.recompute()
